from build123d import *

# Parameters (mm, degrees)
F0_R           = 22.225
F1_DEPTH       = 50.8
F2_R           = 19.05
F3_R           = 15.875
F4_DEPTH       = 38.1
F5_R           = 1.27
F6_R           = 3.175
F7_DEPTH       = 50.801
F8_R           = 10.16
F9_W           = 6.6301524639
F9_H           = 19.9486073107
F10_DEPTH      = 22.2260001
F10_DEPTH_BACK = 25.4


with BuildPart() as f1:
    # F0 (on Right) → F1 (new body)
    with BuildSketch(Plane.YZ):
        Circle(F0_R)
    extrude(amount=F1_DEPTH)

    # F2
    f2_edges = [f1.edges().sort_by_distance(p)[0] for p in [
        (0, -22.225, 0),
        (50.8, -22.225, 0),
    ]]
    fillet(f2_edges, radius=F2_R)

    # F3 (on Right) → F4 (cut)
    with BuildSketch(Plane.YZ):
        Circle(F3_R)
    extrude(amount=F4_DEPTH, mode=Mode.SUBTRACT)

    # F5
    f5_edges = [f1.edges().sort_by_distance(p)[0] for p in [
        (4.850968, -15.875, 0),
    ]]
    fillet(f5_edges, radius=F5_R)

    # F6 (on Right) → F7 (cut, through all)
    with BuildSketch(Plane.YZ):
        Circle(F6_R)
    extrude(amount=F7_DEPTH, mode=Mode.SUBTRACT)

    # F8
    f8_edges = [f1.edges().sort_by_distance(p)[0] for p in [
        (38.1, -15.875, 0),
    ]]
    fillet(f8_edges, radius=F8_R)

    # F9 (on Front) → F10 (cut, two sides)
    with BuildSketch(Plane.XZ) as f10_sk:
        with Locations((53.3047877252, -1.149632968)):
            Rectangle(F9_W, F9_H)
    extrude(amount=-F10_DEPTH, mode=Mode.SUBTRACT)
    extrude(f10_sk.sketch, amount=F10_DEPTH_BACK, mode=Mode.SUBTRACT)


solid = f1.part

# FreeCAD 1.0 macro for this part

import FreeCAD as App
import Part
import Sketcher
from FreeCAD import Vector
Q = App.Units.Quantity


def edges_at(feature, points):
    """Names of the edges that pass closest to the given points."""
    edges = feature.Shape.Edges
    near = lambda p: min(range(len(edges)), key=lambda i: edges[i].distToShape(Part.Vertex(*p))[0])
    return sorted({f"Edge{near(p) + 1}" for p in points})

doc = App.newDocument("Part")
params = doc.addObject("Spreadsheet::Sheet", "Params")
for row, (alias, value) in enumerate([
    ("sketch1_diameter", "1.75 in"),
    ("pad1_length", "2 in"),
    ("fillet_radius", "0.75 in"),
    ("sketch2_diameter", "1.25 in"),
    ("pocket1_length", "1.5 in"),
    ("fillet2_radius", "0.05 in"),
    ("sketch3_diameter", "0.25 in"),
    ("fillet3_radius", "0.4 in"),
], start=1):
    params.set(f"A{row}", alias)
    params.set(f"B{row}", "=" + value)
    params.setAlias(f"B{row}", alias)

body = doc.addObject("PartDesign::Body", "Body")

# Sketch on YZ plane
sketch1 = body.newObject("Sketcher::SketchObject", "Sketch")
sketch1.AttachmentSupport = (doc.getObject("YZ_Plane"), [""])
sketch1.MapMode = "FlatFace"
sketch1.addGeometry(Part.Circle(Vector(0, 0, 0), Vector(0, 0, 1), 22), False)
sketch1.addConstraint(Sketcher.Constraint("Coincident", 0, 3, -1, 1))
sketch1.addConstraint(Sketcher.Constraint("Diameter", 0, Q("1.75 in")))
sketch1.setExpression("Constraints[1]", "Params.sketch1_diameter")
pad1 = body.newObject("PartDesign::Pad", "Pad")
pad1.Profile = sketch1
pad1.setExpression("Length", "Params.pad1_length")
doc.recompute()

fillet = body.newObject("PartDesign::Fillet", "Fillet")
fillet.Base = (pad1, edges_at(pad1, [(0, -22.225, 0), (50.8, -22.225, 0)]))
fillet.setExpression("Radius", "Params.fillet_radius")

# Sketch on YZ plane
sketch2 = body.newObject("Sketcher::SketchObject", "Sketch001")
sketch2.AttachmentSupport = (doc.getObject("YZ_Plane"), [""])
sketch2.MapMode = "FlatFace"
sketch2.addGeometry(Part.Circle(Vector(0, 0, 0), Vector(0, 0, 1), 16), False)
sketch2.addConstraint(Sketcher.Constraint("Coincident", 0, 3, -1, 1))
sketch2.addConstraint(Sketcher.Constraint("Diameter", 0, Q("1.25 in")))
sketch2.setExpression("Constraints[1]", "Params.sketch2_diameter")
pocket1 = body.newObject("PartDesign::Pocket", "Pocket")
pocket1.Profile = sketch2
pocket1.setExpression("Length", "Params.pocket1_length")
pocket1.Reversed = True
doc.recompute()

fillet2 = body.newObject("PartDesign::Fillet", "Fillet001")
fillet2.Base = (pocket1, edges_at(pocket1, [(4.851, -15.875, 0)]))
fillet2.setExpression("Radius", "Params.fillet2_radius")

# Sketch on YZ plane
sketch3 = body.newObject("Sketcher::SketchObject", "Sketch002")
sketch3.AttachmentSupport = (doc.getObject("YZ_Plane"), [""])
sketch3.MapMode = "FlatFace"
sketch3.addGeometry(Part.Circle(Vector(0, 0, 0), Vector(0, 0, 1), 3.2), False)
sketch3.addConstraint(Sketcher.Constraint("Coincident", 0, 3, -1, 1))
sketch3.addConstraint(Sketcher.Constraint("Diameter", 0, Q("0.25 in")))
sketch3.setExpression("Constraints[1]", "Params.sketch3_diameter")
pocket2 = body.newObject("PartDesign::Pocket", "Pocket001")
pocket2.Profile = sketch3
pocket2.Type = "ThroughAll"
pocket2.Reversed = True
doc.recompute()

fillet3 = body.newObject("PartDesign::Fillet", "Fillet002")
fillet3.Base = (pocket2, edges_at(pocket2, [(38.1, -15.875, 0)]))
fillet3.setExpression("Radius", "Params.fillet3_radius")

# Sketch on XZ plane
sketch4 = body.newObject("Sketcher::SketchObject", "Sketch003")
sketch4.AttachmentSupport = (doc.getObject("XZ_Plane"), [""])
sketch4.MapMode = "FlatFace"
sketch4.addGeometry(Part.LineSegment(Vector(50, 9, 0), Vector(50, -11, 0)), False)
sketch4.addGeometry(Part.LineSegment(Vector(50, -11, 0), Vector(57, -11, 0)), False)
sketch4.addGeometry(Part.LineSegment(Vector(57, -11, 0), Vector(57, 9, 0)), False)
sketch4.addGeometry(Part.LineSegment(Vector(57, 9, 0), Vector(50, 9, 0)), False)
sketch4.addConstraint(Sketcher.Constraint("Coincident", 0, 2, 1, 1))
sketch4.addConstraint(Sketcher.Constraint("Coincident", 1, 2, 2, 1))
sketch4.addConstraint(Sketcher.Constraint("Coincident", 2, 2, 3, 1))
sketch4.addConstraint(Sketcher.Constraint("Coincident", 3, 2, 0, 1))
sketch4.addConstraint(Sketcher.Constraint("Vertical", 0))
sketch4.addConstraint(Sketcher.Constraint("Horizontal", 1))
sketch4.addConstraint(Sketcher.Constraint("Vertical", 2))
sketch4.addConstraint(Sketcher.Constraint("Horizontal", 3))
sketch4.addConstraint(Sketcher.Constraint("DistanceX", 1, 1, 1, 2, Q("6.630152 mm")))
sketch4.addConstraint(Sketcher.Constraint("DistanceY", 0, 2, 0, 1, Q("19.948607 mm")))
sketch4.addConstraint(Sketcher.Constraint("DistanceX", -1, 1, 0, 2, Q("49.989711 mm")))
sketch4.addConstraint(Sketcher.Constraint("DistanceY", -1, 1, 2, 2, Q("8.824671 mm")))
pocket3 = body.newObject("PartDesign::Pocket", "Pocket002")
pocket3.Profile = sketch4
pocket3.Type = "ThroughAll"
pocket3.Midplane = True

doc.recompute()
